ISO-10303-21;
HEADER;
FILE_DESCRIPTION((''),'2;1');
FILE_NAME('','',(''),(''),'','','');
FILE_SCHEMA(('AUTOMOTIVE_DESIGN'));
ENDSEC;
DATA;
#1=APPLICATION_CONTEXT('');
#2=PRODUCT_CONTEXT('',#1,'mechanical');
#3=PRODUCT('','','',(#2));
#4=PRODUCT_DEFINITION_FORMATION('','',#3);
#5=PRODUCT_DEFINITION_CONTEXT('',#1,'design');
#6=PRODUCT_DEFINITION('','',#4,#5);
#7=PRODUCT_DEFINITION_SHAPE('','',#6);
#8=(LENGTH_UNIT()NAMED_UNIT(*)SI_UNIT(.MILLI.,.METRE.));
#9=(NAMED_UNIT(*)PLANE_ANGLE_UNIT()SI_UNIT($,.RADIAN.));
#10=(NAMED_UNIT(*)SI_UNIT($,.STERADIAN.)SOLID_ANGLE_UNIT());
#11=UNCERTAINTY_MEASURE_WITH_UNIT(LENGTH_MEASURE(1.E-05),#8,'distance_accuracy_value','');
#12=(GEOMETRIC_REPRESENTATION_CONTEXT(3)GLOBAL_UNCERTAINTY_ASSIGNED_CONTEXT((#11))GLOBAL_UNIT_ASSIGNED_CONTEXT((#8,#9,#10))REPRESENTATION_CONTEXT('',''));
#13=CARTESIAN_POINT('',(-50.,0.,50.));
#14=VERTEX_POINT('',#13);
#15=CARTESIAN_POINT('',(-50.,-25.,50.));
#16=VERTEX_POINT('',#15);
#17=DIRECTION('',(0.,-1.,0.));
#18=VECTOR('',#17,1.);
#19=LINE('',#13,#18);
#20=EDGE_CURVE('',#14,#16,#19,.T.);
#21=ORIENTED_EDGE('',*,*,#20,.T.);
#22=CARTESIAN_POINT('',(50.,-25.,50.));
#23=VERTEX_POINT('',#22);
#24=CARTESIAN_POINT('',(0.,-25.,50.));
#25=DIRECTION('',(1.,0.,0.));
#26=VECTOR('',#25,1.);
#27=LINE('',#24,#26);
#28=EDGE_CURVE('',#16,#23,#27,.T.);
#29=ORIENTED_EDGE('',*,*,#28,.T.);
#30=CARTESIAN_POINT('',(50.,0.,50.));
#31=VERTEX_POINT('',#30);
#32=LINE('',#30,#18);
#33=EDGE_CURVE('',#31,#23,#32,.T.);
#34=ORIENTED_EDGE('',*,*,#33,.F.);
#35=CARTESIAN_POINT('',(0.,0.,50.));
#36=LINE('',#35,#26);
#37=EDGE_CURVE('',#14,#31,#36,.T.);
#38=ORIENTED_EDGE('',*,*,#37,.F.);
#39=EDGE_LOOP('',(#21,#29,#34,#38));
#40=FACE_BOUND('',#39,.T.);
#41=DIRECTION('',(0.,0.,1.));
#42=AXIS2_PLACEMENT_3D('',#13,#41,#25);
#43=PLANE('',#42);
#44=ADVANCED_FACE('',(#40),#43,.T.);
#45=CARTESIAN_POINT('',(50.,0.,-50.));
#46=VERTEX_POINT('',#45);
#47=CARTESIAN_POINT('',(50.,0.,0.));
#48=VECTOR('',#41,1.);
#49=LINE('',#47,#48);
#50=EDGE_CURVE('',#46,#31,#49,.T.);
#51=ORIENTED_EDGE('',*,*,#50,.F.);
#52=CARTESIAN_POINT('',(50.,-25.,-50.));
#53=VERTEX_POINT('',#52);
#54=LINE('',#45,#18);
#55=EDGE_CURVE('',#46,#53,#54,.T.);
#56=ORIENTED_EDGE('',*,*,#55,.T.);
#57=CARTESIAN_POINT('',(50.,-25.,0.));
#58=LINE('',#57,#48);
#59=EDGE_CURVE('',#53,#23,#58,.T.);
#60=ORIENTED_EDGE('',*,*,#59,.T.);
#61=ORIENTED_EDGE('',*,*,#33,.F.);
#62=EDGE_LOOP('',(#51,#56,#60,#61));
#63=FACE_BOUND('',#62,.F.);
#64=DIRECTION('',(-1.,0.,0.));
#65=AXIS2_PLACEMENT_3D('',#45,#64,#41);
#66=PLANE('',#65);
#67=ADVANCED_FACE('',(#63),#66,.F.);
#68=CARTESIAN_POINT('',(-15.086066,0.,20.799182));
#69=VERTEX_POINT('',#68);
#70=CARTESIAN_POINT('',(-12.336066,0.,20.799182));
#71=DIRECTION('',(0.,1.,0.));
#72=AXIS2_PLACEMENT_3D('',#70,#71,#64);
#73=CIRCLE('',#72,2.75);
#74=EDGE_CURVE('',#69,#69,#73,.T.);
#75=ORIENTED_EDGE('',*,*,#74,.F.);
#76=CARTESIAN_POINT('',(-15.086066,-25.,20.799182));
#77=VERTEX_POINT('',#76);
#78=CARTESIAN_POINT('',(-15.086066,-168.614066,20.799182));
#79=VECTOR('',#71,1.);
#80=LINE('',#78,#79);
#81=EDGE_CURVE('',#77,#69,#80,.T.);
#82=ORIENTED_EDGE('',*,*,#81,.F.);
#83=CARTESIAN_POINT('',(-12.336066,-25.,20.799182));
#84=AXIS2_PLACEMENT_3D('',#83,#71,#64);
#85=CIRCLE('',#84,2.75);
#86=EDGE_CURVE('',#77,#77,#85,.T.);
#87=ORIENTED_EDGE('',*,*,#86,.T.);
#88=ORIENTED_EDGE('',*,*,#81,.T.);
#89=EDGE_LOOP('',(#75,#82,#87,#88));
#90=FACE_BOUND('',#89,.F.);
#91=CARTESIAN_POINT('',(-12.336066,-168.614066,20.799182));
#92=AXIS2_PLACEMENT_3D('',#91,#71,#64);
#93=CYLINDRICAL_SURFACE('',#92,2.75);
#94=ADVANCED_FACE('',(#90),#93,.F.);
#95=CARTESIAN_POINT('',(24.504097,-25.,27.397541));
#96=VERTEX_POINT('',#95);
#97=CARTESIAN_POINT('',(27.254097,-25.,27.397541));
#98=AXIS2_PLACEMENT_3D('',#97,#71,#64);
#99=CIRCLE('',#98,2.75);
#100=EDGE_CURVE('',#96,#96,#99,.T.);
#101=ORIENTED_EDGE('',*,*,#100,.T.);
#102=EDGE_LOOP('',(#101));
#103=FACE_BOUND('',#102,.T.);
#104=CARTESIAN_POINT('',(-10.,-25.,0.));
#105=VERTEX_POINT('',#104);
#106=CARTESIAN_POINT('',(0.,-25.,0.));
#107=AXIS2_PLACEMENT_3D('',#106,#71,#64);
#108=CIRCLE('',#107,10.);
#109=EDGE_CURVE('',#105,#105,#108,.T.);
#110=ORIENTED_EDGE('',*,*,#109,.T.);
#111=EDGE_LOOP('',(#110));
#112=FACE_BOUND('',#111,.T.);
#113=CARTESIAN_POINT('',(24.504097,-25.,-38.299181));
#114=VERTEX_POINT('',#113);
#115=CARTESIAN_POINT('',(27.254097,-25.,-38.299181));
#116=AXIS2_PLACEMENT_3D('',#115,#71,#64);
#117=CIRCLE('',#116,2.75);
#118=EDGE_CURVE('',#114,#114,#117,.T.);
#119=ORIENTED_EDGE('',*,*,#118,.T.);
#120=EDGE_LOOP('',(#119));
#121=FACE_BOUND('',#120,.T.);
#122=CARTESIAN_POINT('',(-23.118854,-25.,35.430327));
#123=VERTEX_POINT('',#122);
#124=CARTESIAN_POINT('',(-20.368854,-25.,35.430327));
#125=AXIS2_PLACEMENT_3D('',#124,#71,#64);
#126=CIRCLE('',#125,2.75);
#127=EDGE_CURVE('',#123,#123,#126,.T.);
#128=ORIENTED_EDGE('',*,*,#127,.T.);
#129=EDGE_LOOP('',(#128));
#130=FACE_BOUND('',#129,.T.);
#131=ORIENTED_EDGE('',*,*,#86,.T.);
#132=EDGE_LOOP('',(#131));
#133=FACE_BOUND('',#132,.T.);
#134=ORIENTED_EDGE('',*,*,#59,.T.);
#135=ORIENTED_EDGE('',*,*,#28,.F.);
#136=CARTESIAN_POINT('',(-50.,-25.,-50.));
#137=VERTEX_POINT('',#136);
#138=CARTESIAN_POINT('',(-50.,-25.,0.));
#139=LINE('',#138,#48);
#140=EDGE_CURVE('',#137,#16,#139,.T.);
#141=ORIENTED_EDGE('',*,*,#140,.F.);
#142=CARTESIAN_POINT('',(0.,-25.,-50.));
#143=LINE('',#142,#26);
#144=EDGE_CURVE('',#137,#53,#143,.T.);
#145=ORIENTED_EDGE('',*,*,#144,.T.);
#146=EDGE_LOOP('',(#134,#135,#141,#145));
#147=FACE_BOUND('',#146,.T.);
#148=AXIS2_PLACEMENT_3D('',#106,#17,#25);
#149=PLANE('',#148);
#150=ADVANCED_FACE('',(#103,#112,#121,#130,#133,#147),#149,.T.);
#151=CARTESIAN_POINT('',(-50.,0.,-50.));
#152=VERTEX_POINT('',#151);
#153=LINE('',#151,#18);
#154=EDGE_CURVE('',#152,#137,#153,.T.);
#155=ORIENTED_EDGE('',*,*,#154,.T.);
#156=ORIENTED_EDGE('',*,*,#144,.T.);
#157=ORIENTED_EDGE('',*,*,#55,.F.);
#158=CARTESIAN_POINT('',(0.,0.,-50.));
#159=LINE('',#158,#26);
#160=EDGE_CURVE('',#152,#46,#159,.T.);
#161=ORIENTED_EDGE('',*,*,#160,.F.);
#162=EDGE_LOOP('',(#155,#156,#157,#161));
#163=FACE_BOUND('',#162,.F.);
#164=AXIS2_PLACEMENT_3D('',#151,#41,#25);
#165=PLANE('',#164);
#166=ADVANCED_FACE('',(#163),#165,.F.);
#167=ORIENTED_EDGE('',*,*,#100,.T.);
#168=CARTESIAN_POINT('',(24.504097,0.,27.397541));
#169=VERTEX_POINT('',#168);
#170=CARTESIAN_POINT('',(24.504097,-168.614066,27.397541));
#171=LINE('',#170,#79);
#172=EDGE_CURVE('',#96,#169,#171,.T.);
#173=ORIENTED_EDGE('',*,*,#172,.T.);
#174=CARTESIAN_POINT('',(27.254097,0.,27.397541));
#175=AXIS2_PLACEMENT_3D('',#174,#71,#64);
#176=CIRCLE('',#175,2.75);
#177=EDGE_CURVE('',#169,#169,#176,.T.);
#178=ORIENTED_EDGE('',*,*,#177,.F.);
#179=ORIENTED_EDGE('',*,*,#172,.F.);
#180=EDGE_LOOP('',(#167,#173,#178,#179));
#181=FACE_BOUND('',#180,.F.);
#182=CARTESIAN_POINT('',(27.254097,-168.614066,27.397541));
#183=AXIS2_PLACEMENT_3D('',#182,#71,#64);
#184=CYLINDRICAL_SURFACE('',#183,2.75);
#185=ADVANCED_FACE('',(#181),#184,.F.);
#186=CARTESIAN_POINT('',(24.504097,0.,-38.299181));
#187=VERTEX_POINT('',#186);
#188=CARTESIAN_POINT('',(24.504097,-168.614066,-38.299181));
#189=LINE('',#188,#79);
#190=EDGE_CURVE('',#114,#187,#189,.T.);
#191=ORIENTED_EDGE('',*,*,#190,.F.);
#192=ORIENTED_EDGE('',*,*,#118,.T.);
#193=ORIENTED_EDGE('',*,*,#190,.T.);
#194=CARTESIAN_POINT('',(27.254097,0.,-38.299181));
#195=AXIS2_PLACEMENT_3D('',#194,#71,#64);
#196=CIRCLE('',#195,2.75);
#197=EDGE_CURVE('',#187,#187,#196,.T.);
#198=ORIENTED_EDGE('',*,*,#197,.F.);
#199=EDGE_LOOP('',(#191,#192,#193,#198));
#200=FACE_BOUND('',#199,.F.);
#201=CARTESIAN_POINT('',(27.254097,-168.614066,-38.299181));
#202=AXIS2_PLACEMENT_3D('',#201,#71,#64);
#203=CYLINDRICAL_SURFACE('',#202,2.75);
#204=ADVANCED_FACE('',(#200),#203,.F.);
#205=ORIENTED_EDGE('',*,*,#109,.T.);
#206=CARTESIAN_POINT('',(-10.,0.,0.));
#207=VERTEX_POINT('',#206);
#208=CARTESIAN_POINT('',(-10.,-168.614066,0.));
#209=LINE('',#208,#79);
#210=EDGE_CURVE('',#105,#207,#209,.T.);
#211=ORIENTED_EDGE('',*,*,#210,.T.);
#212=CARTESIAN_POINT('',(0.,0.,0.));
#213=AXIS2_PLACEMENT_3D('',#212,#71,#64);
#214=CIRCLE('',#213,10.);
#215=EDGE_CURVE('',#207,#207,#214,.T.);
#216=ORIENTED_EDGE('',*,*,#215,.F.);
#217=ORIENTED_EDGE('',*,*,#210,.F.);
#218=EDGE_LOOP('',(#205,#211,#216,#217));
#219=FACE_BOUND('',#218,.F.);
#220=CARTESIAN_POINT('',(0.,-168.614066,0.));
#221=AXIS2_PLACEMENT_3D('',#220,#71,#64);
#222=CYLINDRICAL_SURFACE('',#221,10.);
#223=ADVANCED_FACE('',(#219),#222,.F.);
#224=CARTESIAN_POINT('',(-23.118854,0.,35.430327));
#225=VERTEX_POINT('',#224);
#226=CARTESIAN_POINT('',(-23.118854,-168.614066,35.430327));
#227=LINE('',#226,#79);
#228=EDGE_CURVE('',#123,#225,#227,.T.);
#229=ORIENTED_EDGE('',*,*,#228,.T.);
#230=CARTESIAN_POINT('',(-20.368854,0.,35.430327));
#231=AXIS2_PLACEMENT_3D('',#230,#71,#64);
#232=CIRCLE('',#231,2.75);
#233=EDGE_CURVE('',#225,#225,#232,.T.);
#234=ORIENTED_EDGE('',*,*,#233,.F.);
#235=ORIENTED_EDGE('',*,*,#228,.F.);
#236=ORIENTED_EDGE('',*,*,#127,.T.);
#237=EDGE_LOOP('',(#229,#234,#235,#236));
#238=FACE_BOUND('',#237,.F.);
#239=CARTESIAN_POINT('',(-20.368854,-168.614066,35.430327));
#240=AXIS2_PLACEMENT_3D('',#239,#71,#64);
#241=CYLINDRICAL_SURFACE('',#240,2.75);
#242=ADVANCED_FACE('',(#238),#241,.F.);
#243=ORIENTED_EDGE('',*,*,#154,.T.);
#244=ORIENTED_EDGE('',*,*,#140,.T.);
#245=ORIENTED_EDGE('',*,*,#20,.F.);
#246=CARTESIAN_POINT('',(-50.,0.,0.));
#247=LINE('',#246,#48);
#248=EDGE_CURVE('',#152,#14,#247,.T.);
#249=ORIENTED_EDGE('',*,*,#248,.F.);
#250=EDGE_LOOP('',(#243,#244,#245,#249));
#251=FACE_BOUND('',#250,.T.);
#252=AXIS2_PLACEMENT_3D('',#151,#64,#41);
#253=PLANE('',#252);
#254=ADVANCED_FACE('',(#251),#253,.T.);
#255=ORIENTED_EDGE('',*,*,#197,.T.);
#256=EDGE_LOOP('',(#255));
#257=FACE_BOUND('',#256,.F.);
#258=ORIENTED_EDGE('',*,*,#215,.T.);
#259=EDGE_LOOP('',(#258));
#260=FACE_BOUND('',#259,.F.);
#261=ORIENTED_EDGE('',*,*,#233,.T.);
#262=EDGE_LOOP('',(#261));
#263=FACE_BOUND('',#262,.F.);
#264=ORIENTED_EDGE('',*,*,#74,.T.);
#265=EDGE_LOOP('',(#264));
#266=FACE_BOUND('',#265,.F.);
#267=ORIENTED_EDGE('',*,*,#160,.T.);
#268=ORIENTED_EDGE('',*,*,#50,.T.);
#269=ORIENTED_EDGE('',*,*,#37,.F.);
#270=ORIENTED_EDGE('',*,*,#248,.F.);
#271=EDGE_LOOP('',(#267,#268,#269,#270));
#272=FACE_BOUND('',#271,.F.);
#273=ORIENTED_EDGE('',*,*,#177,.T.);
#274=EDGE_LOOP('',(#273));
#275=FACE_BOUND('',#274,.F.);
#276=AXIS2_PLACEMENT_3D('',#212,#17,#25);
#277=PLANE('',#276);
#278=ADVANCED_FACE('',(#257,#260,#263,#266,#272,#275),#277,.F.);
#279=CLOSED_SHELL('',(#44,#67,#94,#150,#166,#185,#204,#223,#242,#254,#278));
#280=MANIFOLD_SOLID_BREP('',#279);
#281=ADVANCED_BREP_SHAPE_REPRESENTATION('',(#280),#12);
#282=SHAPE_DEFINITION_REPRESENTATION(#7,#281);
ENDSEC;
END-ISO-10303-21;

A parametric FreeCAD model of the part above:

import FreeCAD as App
import Part
import Sketcher


def add_polygon(sketch, points):
    """Adds a closed chain of lines whose ends are joined by coincident constraints."""
    first, n = sketch.GeometryCount, len(points)
    for a, b in zip(points, points[1:] + points[:1]):
        sketch.addGeometry(Part.LineSegment(App.Vector(*a, 0), App.Vector(*b, 0)), False)
    for i in range(n):
        sketch.addConstraint(Sketcher.Constraint("Coincident", first + i, 2, first + (i + 1) % n, 1))

doc = App.newDocument("Part")
body = doc.addObject("PartDesign::Body", "Body")

sketch1 = body.newObject("Sketcher::SketchObject", "Sketch")
sketch1.AttachmentSupport = (doc.getObject("XZ_Plane"), [""])
sketch1.MapMode = "FlatFace"
add_polygon(sketch1, [(-50, 50), (-50, -50), (50, -50), (50, 50)])
sketch1.addConstraint(Sketcher.Constraint("Vertical", 0))
sketch1.addConstraint(Sketcher.Constraint("Horizontal", 1))
sketch1.addConstraint(Sketcher.Constraint("Vertical", 2))
sketch1.addConstraint(Sketcher.Constraint("Horizontal", 3))
sketch1.addConstraint(Sketcher.Constraint("Symmetric", 0, 2, 2, 2, -1, 1))
sketch1.addConstraint(Sketcher.Constraint("Equal", 3, 0))
sketch1.addConstraint(Sketcher.Constraint("DistanceX", 1, 1, 1, 2, 100.0))
pad1 = body.newObject("PartDesign::Pad", "Pad")
pad1.Profile = sketch1
pad1.Length = 25

sketch2 = body.newObject("Sketcher::SketchObject", "Sketch001")
sketch2.AttachmentSupport = (doc.getObject("XZ_Plane"), [""])
sketch2.MapMode = "FlatFace"
sketch2.AttachmentOffset = App.Placement(App.Vector(0, 0, 25), App.Rotation())
sketch2.addGeometry(Part.Circle(App.Vector(0, 0, 0), App.Vector(0, 0, 1), 10), False)
sketch2.addConstraint(Sketcher.Constraint("Coincident", 0, 3, -1, 1))
sketch2.addConstraint(Sketcher.Constraint("Diameter", 0, 20.0))
doc.recompute()
hole = body.newObject("PartDesign::Hole", "Hole")
hole.Profile = sketch2
hole.ThreadType = "None"
hole.Diameter = 20
hole.DepthType = "ThroughAll"

sketch3 = body.newObject("Sketcher::SketchObject", "Sketch002")
sketch3.AttachmentSupport = (doc.getObject("XZ_Plane"), [""])
sketch3.MapMode = "FlatFace"
sketch3.AttachmentOffset = App.Placement(App.Vector(0, 0, 25), App.Rotation())
sketch3.addGeometry(Part.Circle(App.Vector(27.3, 27.4, 0), App.Vector(0, 0, 1), 2.8), False)
sketch3.addGeometry(Part.Circle(App.Vector(-12.3, 20.8, 0), App.Vector(0, 0, 1), 2.8), False)
sketch3.addGeometry(Part.Circle(App.Vector(-20.4, 35.4, 0), App.Vector(0, 0, 1), 2.8), False)
sketch3.addGeometry(Part.Circle(App.Vector(27.3, -38.3, 0), App.Vector(0, 0, 1), 2.8), False)
sketch3.addConstraint(Sketcher.Constraint("Equal", 0, 1))
sketch3.addConstraint(Sketcher.Constraint("Equal", 1, 2))
sketch3.addConstraint(Sketcher.Constraint("Equal", 2, 3))
sketch3.addConstraint(Sketcher.Constraint("Vertical", 0, 3, 3, 3))
sketch3.addConstraint(Sketcher.Constraint("Diameter", 0, 5.5))
sketch3.addConstraint(Sketcher.Constraint("DistanceY", -1, 1, 0, 3, 27.397541))
sketch3.addConstraint(Sketcher.Constraint("DistanceY", 3, 3, -1, 1, 38.299181))
sketch3.addConstraint(Sketcher.Constraint("DistanceY", 1, 3, 0, 3, 6.598359))
sketch3.addConstraint(Sketcher.Constraint("DistanceX", 2, 3, 0, 3, 47.622951))
sketch3.addConstraint(Sketcher.Constraint("DistanceX", -1, 1, 0, 3, 27.254097))
sketch3.addConstraint(Sketcher.Constraint("DistanceX", 1, 3, -1, 1, 12.336066))
sketch3.addConstraint(Sketcher.Constraint("DistanceY", -1, 1, 2, 3, 35.430327))
doc.recompute()
hole2 = body.newObject("PartDesign::Hole", "Hole001")
hole2.Profile = sketch3
hole2.ThreadType = "None"
hole2.Diameter = 5.5
hole2.DepthType = "ThroughAll"

doc.recompute()
